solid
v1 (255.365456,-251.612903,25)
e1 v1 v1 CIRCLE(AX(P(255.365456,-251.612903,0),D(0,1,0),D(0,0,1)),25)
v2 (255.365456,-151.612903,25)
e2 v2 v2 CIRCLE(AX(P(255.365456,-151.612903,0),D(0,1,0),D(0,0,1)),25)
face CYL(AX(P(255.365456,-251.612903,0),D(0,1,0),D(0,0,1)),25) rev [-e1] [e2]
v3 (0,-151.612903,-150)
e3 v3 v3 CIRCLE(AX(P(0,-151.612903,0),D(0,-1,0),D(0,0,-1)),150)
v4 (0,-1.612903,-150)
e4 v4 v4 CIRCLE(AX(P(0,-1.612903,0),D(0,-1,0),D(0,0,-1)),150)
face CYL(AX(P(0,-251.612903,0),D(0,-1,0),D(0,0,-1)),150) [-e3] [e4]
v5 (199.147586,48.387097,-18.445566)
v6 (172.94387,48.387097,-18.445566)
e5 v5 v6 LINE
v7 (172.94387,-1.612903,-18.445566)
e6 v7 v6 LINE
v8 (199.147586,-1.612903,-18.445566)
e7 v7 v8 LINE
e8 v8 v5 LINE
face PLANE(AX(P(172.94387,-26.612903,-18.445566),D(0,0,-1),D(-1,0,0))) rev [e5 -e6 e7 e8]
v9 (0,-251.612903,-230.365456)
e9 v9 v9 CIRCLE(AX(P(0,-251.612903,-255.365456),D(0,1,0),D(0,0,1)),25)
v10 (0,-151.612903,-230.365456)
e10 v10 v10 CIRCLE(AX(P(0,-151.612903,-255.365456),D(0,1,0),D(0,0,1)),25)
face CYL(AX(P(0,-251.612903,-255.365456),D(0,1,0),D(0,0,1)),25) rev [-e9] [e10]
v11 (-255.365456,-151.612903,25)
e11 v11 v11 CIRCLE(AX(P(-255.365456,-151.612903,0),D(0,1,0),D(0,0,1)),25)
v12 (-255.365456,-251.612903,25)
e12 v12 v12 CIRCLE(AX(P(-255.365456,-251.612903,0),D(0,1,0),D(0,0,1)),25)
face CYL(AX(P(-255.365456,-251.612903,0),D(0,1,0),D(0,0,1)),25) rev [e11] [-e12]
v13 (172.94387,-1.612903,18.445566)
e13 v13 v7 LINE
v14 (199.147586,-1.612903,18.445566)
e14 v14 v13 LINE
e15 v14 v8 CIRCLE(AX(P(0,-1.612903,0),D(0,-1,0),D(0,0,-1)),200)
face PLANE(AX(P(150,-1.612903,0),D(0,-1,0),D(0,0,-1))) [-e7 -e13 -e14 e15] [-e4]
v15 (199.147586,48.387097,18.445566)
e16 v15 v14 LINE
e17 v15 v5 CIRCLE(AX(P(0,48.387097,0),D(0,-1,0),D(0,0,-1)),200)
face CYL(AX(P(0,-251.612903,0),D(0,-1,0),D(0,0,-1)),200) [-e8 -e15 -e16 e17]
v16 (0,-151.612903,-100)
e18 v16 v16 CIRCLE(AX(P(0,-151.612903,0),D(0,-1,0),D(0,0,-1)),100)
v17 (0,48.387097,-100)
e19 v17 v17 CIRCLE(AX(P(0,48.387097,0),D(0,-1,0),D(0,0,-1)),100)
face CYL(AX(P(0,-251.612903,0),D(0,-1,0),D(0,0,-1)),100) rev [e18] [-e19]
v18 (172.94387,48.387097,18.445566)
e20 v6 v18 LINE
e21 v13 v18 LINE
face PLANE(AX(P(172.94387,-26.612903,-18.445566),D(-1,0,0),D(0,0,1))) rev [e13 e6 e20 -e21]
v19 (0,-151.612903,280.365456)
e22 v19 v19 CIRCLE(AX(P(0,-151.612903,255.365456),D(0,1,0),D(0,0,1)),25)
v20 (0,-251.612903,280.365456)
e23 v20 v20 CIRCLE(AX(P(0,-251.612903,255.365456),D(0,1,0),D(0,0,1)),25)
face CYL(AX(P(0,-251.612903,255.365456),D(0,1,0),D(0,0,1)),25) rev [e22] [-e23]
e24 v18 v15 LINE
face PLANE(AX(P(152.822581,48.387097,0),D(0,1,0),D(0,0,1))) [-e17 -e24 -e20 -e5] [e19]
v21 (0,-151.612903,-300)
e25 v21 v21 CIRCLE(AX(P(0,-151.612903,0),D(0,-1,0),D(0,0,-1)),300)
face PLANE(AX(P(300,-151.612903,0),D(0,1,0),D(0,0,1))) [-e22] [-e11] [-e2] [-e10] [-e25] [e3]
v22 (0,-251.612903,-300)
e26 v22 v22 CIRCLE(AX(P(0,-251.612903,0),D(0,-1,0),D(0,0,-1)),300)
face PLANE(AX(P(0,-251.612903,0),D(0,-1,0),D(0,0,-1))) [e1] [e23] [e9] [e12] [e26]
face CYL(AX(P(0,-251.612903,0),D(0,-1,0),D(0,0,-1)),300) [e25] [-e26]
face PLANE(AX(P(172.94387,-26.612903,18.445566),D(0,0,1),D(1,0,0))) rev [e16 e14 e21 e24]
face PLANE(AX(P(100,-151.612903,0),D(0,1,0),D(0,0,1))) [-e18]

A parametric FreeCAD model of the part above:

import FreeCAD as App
import Part
import Sketcher

V = App.Vector
Q = App.Units.Quantity

doc = App.newDocument("Part")
body = doc.addObject("PartDesign::Body", "Body")

# Sketch on XY plane
sketch1 = body.newObject("Sketcher::SketchObject", "Sketch")
sketch1.AttachmentSupport = (doc.getObject("XY_Plane"), [""])
sketch1.MapMode = "FlatFace"
sketch1.addGeometry([
    Part.LineSegment(V(0, -151.612903, 0), V(0, -251.612903, 0)),  # 0
    Part.LineSegment(V(0, -251.612903, 0), V(300, -251.612903, 0)),  # 1
    Part.LineSegment(V(300, -251.612903, 0), V(300, -151.612903, 0)),  # 2
    Part.LineSegment(V(300, -151.612903, 0), V(150, -151.612903, 0)),  # 3
    Part.LineSegment(V(150, -151.612903, 0), V(150, -1.612903, 0)),  # 4
    Part.LineSegment(V(150, -1.612903, 0), V(200, -1.612903, 0)),  # 5
    Part.LineSegment(V(200, -1.612903, 0), V(200, 48.387097, 0)),  # 6
    Part.LineSegment(V(200, 48.387097, 0), V(100, 48.387097, 0)),  # 7
    Part.LineSegment(V(100, 48.387097, 0), V(100, -151.612903, 0)),  # 8
    Part.LineSegment(V(100, -151.612903, 0), V(0, -151.612903, 0)),  # 9
], False)
sketch1.addConstraint([
    Sketcher.Constraint("Coincident", 0, 2, 1, 1),
    Sketcher.Constraint("Coincident", 1, 2, 2, 1),
    Sketcher.Constraint("Coincident", 2, 2, 3, 1),
    Sketcher.Constraint("Coincident", 3, 2, 4, 1),
    Sketcher.Constraint("Coincident", 4, 2, 5, 1),
    Sketcher.Constraint("Coincident", 5, 2, 6, 1),
    Sketcher.Constraint("Coincident", 6, 2, 7, 1),
    Sketcher.Constraint("Coincident", 7, 2, 8, 1),
    Sketcher.Constraint("Coincident", 8, 2, 9, 1),
    Sketcher.Constraint("Coincident", 9, 2, 0, 1),
    Sketcher.Constraint("Vertical", 0),
    Sketcher.Constraint("Horizontal", 1),
    Sketcher.Constraint("Vertical", 2),
    Sketcher.Constraint("Horizontal", 3),
    Sketcher.Constraint("Vertical", 4),
    Sketcher.Constraint("Horizontal", 5),
    Sketcher.Constraint("Vertical", 6),
    Sketcher.Constraint("Horizontal", 7),
    Sketcher.Constraint("Vertical", 8),
    Sketcher.Constraint("Horizontal", 9),
    Sketcher.Constraint("PointOnObject", 0, 2, -2),
    Sketcher.Constraint("Horizontal", 3, 2, 8, 2),
    Sketcher.Constraint("Equal", 7, 9),
    Sketcher.Constraint("Equal", 9, 0),
    Sketcher.Constraint("Equal", 3, 4),
    Sketcher.Constraint("Equal", 5, 6),
    Sketcher.Constraint("DistanceX", 1, 1, 1, 2, Q("300 mm")),
    Sketcher.Constraint("DistanceX", 3, 2, 3, 1, Q("150 mm")),
    Sketcher.Constraint("DistanceX", 5, 1, 5, 2, Q("50 mm")),
    Sketcher.Constraint("DistanceY", 0, 2, -1, 1, Q("251.612903 mm")),
])
revolution = body.newObject("PartDesign::Revolution", "Revolution")
revolution.Profile = sketch1
revolution.ReferenceAxis = (sketch1, ["V_Axis"])
revolution.Angle = 360

# Sketch on XZ plane
sketch2 = body.newObject("Sketcher::SketchObject", "Sketch001")
sketch2.AttachmentSupport = (doc.getObject("XZ_Plane"), [""])
sketch2.MapMode = "FlatFace"
sketch2.AttachmentOffset = App.Placement(V(0, 0, 151.612903), App.Rotation())
sketch2.addGeometry([
    Part.Circle(V(0, -255.365456, 0), V(0, 0, 1), 25),
    Part.Circle(V(255.365456, 0, 0), V(0, 0, 1), 25),
    Part.Circle(V(0, 255.365456, 0), V(0, 0, 1), 25),
    Part.Circle(V(-255.365456, 0, 0), V(0, 0, 1), 25),
], False)
sketch2.addConstraint([
    Sketcher.Constraint("Equal", 0, 1),
    Sketcher.Constraint("Equal", 1, 2),
    Sketcher.Constraint("Equal", 2, 3),
    Sketcher.Constraint("Symmetric", 0, 3, 2, 3, -1, 1),
    Sketcher.Constraint("Symmetric", 1, 3, 3, 3, -1, 1),
    Sketcher.Constraint("PointOnObject", 0, 3, -2),
    Sketcher.Constraint("PointOnObject", 1, 3, -1),
    Sketcher.Constraint("Diameter", 0, Q("50 mm")),
    Sketcher.Constraint("DistanceY", 0, 3, 2, 3, Q("510.730911 mm")),
    Sketcher.Constraint("DistanceX", 3, 3, 1, 3, Q("510.730911 mm")),
])
pocket1 = body.newObject("PartDesign::Pocket", "Pocket")
pocket1.Profile = sketch2
pocket1.Length = 100
pocket1.Reversed = True

# Sketch on XZ plane
sketch3 = body.newObject("Sketcher::SketchObject", "Sketch002")
sketch3.AttachmentSupport = (doc.getObject("XZ_Plane"), [""])
sketch3.MapMode = "FlatFace"
sketch3.AttachmentOffset = App.Placement(V(0, 0, -48.387097), App.Rotation())
sketch3.addGeometry([
    Part.LineSegment(V(172.94387, -18.445566, 0), V(172.94387, 18.445566, 0)),
    Part.LineSegment(V(172.94387, 18.445566, 0), V(227.05613, 18.445566, 0)),
    Part.LineSegment(V(227.05613, 18.445566, 0), V(227.05613, -18.445566, 0)),
    Part.LineSegment(V(227.05613, -18.445566, 0), V(172.94387, -18.445566, 0)),
], False)
sketch3.addConstraint([
    Sketcher.Constraint("Coincident", 0, 2, 1, 1),
    Sketcher.Constraint("Coincident", 1, 2, 2, 1),
    Sketcher.Constraint("Coincident", 2, 2, 3, 1),
    Sketcher.Constraint("Coincident", 3, 2, 0, 1),
    Sketcher.Constraint("Vertical", 0),
    Sketcher.Constraint("Horizontal", 1),
    Sketcher.Constraint("Vertical", 2),
    Sketcher.Constraint("Horizontal", 3),
    Sketcher.Constraint("DistanceX", 1, 1, 1, 2, Q("54.112259 mm")),
    Sketcher.Constraint("DistanceY", 0, 1, 0, 2, Q("36.891131 mm")),
    Sketcher.Constraint("DistanceX", -1, 1, 0, 2, Q("172.94387 mm")),
    Sketcher.Constraint("DistanceY", -1, 1, 0, 2, Q("18.445566 mm")),
])
pocket2 = body.newObject("PartDesign::Pocket", "Pocket001")
pocket2.Profile = sketch3
pocket2.Length = 75
pocket2.Reversed = True

doc.recompute()
